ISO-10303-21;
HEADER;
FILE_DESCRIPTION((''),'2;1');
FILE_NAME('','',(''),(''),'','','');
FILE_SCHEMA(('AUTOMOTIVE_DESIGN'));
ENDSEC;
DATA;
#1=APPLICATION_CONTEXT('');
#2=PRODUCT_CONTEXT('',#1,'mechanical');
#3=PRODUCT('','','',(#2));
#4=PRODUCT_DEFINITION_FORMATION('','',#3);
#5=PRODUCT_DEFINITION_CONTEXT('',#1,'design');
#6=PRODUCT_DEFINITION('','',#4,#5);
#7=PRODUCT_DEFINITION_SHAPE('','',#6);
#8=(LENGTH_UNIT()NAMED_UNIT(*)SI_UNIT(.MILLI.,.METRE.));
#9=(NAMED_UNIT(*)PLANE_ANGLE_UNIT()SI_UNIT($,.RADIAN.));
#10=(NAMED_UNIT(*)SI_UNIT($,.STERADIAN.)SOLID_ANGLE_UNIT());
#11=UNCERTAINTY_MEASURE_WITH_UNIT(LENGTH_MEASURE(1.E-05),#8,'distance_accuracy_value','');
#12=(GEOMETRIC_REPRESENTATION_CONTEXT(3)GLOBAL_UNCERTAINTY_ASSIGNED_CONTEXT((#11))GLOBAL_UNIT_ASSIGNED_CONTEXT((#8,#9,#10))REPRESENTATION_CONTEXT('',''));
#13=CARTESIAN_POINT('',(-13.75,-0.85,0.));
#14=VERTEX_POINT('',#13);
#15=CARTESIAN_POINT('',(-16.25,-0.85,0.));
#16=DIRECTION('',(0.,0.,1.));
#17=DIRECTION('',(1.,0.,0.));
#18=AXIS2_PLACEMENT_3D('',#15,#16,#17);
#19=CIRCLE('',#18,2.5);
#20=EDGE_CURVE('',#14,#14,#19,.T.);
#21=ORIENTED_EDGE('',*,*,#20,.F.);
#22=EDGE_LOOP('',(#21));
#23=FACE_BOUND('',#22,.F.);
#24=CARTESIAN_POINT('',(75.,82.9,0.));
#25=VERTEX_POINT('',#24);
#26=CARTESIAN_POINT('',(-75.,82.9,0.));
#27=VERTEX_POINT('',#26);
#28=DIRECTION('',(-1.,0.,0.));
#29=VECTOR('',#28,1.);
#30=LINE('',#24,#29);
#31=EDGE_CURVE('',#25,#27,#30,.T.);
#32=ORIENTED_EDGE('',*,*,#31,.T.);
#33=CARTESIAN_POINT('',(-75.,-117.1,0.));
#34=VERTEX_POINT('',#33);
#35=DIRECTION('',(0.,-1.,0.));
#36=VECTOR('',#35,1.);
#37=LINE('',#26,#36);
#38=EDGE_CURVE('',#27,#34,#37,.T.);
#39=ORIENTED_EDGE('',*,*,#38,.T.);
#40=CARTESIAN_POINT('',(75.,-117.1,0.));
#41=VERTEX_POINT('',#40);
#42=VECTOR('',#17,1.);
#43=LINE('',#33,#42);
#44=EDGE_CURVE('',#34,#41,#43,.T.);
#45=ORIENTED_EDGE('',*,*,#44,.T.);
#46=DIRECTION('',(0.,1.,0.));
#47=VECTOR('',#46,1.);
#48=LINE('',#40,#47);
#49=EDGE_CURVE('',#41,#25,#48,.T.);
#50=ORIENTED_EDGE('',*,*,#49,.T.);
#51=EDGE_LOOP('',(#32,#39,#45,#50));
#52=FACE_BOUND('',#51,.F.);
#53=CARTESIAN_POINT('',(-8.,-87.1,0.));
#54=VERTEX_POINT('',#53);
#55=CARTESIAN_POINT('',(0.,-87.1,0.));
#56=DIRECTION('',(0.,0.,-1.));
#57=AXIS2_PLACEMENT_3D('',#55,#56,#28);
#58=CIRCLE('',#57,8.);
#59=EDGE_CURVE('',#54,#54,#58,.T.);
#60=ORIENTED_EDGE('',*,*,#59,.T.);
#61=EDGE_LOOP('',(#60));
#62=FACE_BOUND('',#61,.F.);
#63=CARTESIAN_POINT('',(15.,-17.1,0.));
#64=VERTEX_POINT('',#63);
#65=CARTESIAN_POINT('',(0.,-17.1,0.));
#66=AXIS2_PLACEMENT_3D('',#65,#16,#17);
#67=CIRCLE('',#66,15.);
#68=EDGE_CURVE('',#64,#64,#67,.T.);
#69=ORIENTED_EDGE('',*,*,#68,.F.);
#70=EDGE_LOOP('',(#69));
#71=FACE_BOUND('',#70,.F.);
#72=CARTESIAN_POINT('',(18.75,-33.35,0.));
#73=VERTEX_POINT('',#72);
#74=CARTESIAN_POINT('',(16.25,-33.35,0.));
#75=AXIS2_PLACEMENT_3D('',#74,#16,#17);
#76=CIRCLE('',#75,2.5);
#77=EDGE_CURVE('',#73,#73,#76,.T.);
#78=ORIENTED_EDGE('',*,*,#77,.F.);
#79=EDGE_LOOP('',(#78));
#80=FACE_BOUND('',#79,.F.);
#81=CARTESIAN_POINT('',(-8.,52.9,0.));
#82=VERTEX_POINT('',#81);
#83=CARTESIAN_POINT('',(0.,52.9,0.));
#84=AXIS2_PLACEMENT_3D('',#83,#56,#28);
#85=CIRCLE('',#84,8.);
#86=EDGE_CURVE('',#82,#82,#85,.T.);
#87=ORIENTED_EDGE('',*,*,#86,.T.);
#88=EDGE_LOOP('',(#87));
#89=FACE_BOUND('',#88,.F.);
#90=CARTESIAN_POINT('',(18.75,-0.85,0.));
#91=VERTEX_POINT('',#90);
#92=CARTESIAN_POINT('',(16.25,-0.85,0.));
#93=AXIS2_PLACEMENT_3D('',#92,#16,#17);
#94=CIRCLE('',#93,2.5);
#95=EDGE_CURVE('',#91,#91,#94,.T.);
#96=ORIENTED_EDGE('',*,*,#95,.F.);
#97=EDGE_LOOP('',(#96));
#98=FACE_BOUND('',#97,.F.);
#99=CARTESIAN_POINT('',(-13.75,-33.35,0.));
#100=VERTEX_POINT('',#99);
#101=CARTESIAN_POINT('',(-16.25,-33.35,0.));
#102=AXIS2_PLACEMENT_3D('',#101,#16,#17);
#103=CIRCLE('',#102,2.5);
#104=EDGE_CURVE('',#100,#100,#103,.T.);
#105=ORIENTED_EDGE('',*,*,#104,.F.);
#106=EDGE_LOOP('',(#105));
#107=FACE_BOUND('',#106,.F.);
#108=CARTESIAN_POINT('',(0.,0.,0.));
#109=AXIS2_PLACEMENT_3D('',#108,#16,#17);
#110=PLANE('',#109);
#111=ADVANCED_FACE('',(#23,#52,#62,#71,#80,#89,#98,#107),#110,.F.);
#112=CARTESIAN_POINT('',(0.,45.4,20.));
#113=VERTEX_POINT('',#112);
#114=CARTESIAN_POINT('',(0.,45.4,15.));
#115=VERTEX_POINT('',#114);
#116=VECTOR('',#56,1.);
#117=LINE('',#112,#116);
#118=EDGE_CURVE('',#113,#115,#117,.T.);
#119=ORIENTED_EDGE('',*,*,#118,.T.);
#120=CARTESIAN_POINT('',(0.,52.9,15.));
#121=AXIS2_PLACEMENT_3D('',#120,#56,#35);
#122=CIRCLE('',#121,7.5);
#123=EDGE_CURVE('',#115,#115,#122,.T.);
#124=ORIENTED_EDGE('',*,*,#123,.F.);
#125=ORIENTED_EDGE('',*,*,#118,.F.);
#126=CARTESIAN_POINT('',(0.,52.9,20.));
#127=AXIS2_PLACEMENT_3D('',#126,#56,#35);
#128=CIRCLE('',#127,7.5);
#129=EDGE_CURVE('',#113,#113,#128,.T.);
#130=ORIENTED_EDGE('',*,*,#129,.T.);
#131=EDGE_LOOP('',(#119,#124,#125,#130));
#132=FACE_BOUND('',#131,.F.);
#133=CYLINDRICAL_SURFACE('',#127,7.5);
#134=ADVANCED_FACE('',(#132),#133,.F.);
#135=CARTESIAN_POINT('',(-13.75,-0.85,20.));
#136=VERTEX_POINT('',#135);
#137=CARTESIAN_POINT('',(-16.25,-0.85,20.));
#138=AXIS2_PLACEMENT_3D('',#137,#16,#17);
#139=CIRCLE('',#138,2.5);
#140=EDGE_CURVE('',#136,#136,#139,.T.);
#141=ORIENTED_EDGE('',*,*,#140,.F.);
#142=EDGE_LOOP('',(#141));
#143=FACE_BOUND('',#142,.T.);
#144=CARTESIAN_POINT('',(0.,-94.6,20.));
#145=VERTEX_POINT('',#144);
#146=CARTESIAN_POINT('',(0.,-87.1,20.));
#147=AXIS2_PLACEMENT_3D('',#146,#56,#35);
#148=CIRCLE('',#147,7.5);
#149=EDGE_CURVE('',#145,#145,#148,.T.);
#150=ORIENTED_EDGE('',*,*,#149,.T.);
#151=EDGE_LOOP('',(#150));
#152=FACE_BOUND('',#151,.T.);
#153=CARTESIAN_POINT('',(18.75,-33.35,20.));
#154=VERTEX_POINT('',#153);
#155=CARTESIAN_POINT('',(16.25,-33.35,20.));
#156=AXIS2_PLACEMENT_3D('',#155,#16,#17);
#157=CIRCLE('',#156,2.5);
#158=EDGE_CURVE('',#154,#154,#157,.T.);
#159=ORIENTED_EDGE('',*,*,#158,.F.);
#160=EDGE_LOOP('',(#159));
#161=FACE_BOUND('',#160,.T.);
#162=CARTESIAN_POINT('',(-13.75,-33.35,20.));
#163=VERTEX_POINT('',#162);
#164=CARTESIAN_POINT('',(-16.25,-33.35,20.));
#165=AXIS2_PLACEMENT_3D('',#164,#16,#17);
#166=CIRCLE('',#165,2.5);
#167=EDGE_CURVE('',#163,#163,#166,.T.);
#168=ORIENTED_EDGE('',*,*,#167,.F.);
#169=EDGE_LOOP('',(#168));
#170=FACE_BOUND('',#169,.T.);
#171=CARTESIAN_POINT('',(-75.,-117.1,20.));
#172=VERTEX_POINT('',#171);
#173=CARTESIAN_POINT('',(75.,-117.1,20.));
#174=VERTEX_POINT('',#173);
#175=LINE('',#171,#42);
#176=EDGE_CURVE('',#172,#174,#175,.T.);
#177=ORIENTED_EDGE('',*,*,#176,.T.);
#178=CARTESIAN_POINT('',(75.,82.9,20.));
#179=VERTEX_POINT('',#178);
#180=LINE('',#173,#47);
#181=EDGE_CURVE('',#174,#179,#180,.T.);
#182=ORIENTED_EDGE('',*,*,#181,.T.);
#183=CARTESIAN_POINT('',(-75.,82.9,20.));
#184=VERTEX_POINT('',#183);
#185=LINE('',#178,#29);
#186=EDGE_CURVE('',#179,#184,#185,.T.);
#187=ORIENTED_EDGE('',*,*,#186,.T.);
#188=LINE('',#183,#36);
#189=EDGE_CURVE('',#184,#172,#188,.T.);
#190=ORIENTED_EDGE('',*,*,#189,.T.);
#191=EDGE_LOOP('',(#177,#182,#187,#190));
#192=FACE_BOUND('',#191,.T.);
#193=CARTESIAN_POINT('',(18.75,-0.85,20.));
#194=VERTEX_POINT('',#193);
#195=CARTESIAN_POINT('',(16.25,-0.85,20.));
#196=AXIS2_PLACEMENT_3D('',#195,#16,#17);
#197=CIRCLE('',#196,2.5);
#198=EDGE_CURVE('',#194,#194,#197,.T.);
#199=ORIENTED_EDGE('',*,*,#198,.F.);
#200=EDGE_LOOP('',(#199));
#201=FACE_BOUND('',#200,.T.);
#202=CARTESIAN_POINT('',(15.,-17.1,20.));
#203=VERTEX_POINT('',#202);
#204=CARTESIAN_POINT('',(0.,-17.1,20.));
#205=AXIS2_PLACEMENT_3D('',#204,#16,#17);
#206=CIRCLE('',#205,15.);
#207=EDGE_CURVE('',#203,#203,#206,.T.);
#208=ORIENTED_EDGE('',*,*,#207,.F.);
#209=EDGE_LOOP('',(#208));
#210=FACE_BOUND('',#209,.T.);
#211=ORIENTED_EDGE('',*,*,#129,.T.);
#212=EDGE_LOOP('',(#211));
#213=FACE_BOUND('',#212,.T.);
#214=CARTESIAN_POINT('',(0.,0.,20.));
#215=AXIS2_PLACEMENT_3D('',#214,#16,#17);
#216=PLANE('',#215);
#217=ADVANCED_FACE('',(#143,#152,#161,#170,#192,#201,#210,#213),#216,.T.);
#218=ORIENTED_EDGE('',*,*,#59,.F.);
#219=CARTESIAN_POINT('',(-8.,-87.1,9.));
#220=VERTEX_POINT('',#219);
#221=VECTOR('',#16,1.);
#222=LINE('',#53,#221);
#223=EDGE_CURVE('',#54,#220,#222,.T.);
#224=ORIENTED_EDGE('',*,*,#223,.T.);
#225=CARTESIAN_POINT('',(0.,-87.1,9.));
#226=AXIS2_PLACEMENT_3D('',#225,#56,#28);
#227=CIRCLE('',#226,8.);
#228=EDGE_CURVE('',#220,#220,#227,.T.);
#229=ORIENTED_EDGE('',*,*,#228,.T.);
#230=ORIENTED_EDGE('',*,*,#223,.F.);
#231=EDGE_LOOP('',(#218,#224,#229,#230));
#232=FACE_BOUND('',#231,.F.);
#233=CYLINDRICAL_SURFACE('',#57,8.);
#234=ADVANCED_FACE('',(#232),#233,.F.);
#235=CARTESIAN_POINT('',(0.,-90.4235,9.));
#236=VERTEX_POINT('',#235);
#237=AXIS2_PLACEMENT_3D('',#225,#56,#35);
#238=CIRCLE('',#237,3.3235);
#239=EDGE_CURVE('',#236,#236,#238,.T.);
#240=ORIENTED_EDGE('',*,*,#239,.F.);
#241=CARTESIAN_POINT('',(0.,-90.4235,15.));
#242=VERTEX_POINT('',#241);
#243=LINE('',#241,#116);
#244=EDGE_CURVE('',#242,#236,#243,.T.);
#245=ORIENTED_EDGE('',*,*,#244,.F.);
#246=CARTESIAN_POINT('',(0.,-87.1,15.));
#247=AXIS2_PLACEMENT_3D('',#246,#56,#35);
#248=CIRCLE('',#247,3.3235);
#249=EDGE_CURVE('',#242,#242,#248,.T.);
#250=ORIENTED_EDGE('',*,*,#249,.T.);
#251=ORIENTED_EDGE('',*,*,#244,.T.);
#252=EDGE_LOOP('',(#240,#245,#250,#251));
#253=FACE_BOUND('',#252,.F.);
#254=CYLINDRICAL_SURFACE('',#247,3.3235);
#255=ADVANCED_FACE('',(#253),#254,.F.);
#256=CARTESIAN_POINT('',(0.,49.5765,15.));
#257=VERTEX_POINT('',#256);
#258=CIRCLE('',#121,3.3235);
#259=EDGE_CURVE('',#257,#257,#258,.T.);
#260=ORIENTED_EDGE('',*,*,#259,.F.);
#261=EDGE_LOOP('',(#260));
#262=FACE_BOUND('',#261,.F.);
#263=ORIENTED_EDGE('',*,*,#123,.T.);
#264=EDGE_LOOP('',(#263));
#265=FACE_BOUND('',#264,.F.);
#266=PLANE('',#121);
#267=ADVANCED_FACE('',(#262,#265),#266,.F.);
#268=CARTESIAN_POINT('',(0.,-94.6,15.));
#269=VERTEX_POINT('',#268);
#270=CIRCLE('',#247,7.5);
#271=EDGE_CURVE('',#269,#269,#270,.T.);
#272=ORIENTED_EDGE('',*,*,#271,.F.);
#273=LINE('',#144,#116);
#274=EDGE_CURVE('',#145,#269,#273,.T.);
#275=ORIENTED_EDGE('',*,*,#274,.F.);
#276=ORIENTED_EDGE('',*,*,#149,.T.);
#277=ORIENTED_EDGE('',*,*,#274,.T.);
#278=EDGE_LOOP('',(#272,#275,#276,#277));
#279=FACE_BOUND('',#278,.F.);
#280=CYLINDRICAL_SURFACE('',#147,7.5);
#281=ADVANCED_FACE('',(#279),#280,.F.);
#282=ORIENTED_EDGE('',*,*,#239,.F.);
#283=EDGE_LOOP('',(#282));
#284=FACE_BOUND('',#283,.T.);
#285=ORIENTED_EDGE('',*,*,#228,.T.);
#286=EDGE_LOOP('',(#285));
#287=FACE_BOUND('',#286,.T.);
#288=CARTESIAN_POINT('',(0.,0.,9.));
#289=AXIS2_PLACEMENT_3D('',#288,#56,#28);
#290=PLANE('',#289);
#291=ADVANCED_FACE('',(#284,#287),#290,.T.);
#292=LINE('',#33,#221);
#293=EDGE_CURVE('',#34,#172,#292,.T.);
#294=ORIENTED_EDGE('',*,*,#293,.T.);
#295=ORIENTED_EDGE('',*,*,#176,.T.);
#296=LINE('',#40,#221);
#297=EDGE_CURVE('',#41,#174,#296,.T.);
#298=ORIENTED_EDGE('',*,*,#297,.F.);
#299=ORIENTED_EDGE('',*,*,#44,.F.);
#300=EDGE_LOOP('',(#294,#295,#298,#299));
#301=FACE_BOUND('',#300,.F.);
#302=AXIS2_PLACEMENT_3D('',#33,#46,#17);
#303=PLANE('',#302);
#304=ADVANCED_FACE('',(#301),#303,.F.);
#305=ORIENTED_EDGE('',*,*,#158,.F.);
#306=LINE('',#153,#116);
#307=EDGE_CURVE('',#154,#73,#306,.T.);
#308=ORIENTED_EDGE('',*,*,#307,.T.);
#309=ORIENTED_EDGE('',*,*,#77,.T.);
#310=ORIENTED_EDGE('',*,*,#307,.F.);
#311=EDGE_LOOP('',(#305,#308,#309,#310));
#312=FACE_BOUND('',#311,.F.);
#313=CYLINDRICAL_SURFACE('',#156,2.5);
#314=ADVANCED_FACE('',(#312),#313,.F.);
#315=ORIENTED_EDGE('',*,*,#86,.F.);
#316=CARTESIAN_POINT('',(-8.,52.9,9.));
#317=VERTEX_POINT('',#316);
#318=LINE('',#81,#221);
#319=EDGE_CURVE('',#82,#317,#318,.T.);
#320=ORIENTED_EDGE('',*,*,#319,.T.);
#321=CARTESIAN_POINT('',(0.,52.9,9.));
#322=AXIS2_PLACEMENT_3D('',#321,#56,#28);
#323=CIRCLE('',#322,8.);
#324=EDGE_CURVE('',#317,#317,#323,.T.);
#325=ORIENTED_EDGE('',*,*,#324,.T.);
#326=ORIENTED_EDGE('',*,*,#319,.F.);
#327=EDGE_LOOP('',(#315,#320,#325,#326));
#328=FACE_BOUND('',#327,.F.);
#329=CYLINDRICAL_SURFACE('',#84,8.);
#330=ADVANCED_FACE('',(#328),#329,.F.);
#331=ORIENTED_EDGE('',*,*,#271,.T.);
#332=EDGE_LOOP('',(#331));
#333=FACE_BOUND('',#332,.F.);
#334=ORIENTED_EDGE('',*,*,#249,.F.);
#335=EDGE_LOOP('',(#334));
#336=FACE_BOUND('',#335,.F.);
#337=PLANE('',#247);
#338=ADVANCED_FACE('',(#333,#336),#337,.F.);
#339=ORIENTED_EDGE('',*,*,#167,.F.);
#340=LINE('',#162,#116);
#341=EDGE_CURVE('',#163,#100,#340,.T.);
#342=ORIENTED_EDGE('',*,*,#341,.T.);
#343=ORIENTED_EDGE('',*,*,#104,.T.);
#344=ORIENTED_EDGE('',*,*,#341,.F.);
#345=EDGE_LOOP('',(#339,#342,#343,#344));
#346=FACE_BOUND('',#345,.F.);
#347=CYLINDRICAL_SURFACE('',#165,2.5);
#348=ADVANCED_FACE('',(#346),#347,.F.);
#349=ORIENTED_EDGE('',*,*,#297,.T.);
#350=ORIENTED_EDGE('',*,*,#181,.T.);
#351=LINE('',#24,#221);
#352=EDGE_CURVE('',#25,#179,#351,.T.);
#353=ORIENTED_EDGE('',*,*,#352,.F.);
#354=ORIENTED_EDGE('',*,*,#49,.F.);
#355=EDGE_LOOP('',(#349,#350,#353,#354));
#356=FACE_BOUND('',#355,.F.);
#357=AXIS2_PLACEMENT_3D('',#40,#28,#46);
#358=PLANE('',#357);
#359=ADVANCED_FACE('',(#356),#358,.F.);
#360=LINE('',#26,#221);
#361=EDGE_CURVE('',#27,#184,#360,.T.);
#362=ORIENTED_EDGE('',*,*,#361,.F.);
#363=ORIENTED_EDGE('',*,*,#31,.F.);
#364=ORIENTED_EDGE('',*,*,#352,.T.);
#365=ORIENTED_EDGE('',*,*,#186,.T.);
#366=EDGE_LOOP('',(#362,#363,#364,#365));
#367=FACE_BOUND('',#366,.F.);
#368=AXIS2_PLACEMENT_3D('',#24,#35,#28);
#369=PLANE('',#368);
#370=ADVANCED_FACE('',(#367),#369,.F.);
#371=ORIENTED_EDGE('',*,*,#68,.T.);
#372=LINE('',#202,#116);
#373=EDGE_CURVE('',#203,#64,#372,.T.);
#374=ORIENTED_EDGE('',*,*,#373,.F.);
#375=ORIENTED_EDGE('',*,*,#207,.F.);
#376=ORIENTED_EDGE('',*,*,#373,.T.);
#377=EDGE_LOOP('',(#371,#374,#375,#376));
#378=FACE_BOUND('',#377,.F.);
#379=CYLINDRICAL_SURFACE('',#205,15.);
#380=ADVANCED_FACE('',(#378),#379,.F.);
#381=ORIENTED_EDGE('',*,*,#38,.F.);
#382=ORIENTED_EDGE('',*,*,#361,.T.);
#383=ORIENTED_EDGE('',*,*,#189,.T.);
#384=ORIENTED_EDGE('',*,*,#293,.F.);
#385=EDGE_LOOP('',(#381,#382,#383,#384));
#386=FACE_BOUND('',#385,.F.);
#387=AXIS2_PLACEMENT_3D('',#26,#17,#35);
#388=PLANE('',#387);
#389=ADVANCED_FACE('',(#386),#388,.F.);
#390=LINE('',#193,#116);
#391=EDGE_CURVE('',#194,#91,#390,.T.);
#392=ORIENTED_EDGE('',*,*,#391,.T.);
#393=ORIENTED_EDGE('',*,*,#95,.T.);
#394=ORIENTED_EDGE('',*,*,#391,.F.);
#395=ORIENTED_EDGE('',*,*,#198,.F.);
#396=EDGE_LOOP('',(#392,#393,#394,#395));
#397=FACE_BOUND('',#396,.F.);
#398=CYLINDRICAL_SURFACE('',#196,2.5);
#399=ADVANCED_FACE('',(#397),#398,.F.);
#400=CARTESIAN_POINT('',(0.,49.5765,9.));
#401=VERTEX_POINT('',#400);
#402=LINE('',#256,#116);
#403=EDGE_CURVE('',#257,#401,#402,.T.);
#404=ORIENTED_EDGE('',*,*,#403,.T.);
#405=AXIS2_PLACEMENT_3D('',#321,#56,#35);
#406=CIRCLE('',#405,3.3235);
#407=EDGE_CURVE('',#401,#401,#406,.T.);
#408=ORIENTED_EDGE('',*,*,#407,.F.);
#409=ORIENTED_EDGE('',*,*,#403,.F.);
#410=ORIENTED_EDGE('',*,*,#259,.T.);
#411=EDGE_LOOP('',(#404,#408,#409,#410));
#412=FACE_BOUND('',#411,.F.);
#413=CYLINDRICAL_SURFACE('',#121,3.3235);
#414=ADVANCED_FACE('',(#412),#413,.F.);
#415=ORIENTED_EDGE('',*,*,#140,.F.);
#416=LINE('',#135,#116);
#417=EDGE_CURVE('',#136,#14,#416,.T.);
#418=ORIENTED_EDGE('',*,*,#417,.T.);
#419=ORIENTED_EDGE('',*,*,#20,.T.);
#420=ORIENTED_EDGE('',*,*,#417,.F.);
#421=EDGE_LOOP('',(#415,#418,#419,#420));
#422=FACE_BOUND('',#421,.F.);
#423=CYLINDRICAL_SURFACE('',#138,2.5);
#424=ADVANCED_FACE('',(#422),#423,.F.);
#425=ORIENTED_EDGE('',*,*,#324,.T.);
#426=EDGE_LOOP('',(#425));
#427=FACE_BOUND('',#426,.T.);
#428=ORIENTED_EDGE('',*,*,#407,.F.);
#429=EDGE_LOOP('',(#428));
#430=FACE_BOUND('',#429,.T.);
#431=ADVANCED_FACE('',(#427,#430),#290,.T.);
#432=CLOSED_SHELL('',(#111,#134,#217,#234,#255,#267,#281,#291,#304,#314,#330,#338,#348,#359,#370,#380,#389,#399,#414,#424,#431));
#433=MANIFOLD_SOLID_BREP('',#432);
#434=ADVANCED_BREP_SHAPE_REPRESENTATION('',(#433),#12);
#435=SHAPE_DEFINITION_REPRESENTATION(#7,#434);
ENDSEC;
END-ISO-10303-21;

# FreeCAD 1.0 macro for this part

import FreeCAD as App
import Part
import Sketcher
from FreeCAD import Vector
Q = App.Units.Quantity


def add_polygon(sketch, points):
    """Adds a closed chain of lines whose ends are joined by coincident constraints."""
    first, n = sketch.GeometryCount, len(points)
    for a, b in zip(points, points[1:] + points[:1]):
        sketch.addGeometry(Part.LineSegment(App.Vector(*a, 0), App.Vector(*b, 0)), False)
    for i in range(n):
        sketch.addConstraint(Sketcher.Constraint("Coincident", first + i, 2, first + (i + 1) % n, 1))

doc = App.newDocument("Part")
body = doc.addObject("PartDesign::Body", "Body")

# Sketch on XY plane
sketch1 = doc.addObject("Sketcher::SketchObject", "Sketch")
body.addObject(sketch1)
sketch1.AttachmentSupport = (doc.XY_Plane, [""])
sketch1.MapMode = "FlatFace"
add_polygon(sketch1, [(-75, 82.9), (-75, -117.1), (75, -117.1), (75, 82.9)])  # lines 0-3
sketch1.addConstraint([
    Sketcher.Constraint("Vertical", 0),
    Sketcher.Constraint("Horizontal", 1),
    Sketcher.Constraint("Vertical", 2),
    Sketcher.Constraint("Horizontal", 3),
    Sketcher.Constraint("DistanceX", 1, 1, 1, 2, Q("150 mm")),
    Sketcher.Constraint("DistanceY", 0, 2, 0, 1, Q("200 mm")),
    Sketcher.Constraint("DistanceX", 0, 2, -1, 1, Q("75 mm")),
    Sketcher.Constraint("DistanceY", 0, 2, -1, 1, Q("117.1 mm")),
])
pad1 = doc.addObject("PartDesign::Pad", "Pad")
body.addObject(pad1)
pad1.Profile = sketch1
pad1.Length = 20

# Sketch on XY plane
sketch2 = doc.addObject("Sketcher::SketchObject", "Sketch001")
body.addObject(sketch2)
sketch2.AttachmentSupport = (doc.XY_Plane, [""])
sketch2.MapMode = "FlatFace"
sketch2.AttachmentOffset = App.Placement(Vector(0, 0, 20), App.Rotation())
sketch2.addGeometry([
    Part.Circle(Vector(0, -17.1, 0), Vector(0, 0, 1), 15),  # 0
    Part.Circle(Vector(-16.25, -0.85, 0), Vector(0, 0, 1), 2.5),  # 1
    Part.Circle(Vector(16.25, -0.85, 0), Vector(0, 0, 1), 2.5),  # 2
    Part.Circle(Vector(-16.25, -33.35, 0), Vector(0, 0, 1), 2.5),  # 3
    Part.Circle(Vector(16.25, -33.35, 0), Vector(0, 0, 1), 2.5),  # 4
], False)
sketch2.addConstraint([
    Sketcher.Constraint("Equal", 1, 2),
    Sketcher.Constraint("Equal", 2, 3),
    Sketcher.Constraint("Equal", 3, 4),
    Sketcher.Constraint("Symmetric", 1, 3, 2, 3, -2),
    Sketcher.Constraint("Symmetric", 3, 3, 4, 3, -2),
    Sketcher.Constraint("PointOnObject", 0, 3, -2),
    Sketcher.Constraint("Vertical", 1, 3, 3, 3),
    Sketcher.Constraint("Diameter", 0, Q("30 mm")),
    Sketcher.Constraint("Diameter", 1, Q("5 mm")),
    Sketcher.Constraint("DistanceX", 1, 3, -1, 1, Q("16.25 mm")),
    Sketcher.Constraint("DistanceY", 0, 3, 1, 3, Q("16.25 mm")),
    Sketcher.Constraint("DistanceY", 3, 3, 0, 3, Q("16.25 mm")),
    Sketcher.Constraint("DistanceY", 0, 3, -1, 1, Q("17.1 mm")),
])
pocket1 = doc.addObject("PartDesign::Pocket", "Pocket")
body.addObject(pocket1)
pocket1.Profile = sketch2
pocket1.Type = "ThroughAll"

# Sketch on XY plane
sketch3 = doc.addObject("Sketcher::SketchObject", "Sketch002")
body.addObject(sketch3)
sketch3.AttachmentSupport = (doc.XY_Plane, [""])
sketch3.MapMode = "FlatFace"
sketch3.addGeometry([
    Part.Circle(Vector(0, 52.9, 0), Vector(0, 0, 1), 8),
    Part.Circle(Vector(0, -87.1, 0), Vector(0, 0, 1), 8),
], False)
sketch3.addConstraint([
    Sketcher.Constraint("Equal", 0, 1),
    Sketcher.Constraint("PointOnObject", 0, 3, -2),
    Sketcher.Constraint("PointOnObject", 1, 3, -2),
    Sketcher.Constraint("Diameter", 0, Q("16 mm")),
    Sketcher.Constraint("DistanceY", 1, 3, 0, 3, Q("140 mm")),
    Sketcher.Constraint("DistanceY", -1, 1, 0, 3, Q("52.9 mm")),
])
pocket2 = doc.addObject("PartDesign::Pocket", "Pocket001")
body.addObject(pocket2)
pocket2.Profile = sketch3
pocket2.Length = 9
pocket2.Reversed = True

# Sketch on XY plane
sketch4 = doc.addObject("Sketcher::SketchObject", "Sketch003")
body.addObject(sketch4)
sketch4.AttachmentSupport = (doc.XY_Plane, [""])
sketch4.MapMode = "FlatFace"
sketch4.AttachmentOffset = App.Placement(Vector(0, 0, 20), App.Rotation())
sketch4.addGeometry([
    Part.Circle(Vector(0, -87.1, 0), Vector(0, 0, 1), 3.3235),
    Part.Circle(Vector(0, 52.9, 0), Vector(0, 0, 1), 3.3235),
], False)
sketch4.addConstraint([
    Sketcher.Constraint("Equal", 0, 1),
    Sketcher.Constraint("PointOnObject", 0, 3, -2),
    Sketcher.Constraint("PointOnObject", 1, 3, -2),
    Sketcher.Constraint("Diameter", 0, Q("6.647 mm")),
    Sketcher.Constraint("DistanceY", 0, 3, 1, 3, Q("140 mm")),
    Sketcher.Constraint("DistanceY", 0, 3, -1, 1, Q("87.1 mm")),
])
doc.recompute()
hole = doc.addObject("PartDesign::Hole", "Hole")
body.addObject(hole)
hole.Profile = sketch4
hole.ThreadType = "None"
hole.Diameter = 6.647
hole.DepthType = "ThroughAll"
hole.HoleCutType = "Counterbore"
hole.HoleCutDiameter = 15
hole.HoleCutDepth = 5

doc.recompute()
